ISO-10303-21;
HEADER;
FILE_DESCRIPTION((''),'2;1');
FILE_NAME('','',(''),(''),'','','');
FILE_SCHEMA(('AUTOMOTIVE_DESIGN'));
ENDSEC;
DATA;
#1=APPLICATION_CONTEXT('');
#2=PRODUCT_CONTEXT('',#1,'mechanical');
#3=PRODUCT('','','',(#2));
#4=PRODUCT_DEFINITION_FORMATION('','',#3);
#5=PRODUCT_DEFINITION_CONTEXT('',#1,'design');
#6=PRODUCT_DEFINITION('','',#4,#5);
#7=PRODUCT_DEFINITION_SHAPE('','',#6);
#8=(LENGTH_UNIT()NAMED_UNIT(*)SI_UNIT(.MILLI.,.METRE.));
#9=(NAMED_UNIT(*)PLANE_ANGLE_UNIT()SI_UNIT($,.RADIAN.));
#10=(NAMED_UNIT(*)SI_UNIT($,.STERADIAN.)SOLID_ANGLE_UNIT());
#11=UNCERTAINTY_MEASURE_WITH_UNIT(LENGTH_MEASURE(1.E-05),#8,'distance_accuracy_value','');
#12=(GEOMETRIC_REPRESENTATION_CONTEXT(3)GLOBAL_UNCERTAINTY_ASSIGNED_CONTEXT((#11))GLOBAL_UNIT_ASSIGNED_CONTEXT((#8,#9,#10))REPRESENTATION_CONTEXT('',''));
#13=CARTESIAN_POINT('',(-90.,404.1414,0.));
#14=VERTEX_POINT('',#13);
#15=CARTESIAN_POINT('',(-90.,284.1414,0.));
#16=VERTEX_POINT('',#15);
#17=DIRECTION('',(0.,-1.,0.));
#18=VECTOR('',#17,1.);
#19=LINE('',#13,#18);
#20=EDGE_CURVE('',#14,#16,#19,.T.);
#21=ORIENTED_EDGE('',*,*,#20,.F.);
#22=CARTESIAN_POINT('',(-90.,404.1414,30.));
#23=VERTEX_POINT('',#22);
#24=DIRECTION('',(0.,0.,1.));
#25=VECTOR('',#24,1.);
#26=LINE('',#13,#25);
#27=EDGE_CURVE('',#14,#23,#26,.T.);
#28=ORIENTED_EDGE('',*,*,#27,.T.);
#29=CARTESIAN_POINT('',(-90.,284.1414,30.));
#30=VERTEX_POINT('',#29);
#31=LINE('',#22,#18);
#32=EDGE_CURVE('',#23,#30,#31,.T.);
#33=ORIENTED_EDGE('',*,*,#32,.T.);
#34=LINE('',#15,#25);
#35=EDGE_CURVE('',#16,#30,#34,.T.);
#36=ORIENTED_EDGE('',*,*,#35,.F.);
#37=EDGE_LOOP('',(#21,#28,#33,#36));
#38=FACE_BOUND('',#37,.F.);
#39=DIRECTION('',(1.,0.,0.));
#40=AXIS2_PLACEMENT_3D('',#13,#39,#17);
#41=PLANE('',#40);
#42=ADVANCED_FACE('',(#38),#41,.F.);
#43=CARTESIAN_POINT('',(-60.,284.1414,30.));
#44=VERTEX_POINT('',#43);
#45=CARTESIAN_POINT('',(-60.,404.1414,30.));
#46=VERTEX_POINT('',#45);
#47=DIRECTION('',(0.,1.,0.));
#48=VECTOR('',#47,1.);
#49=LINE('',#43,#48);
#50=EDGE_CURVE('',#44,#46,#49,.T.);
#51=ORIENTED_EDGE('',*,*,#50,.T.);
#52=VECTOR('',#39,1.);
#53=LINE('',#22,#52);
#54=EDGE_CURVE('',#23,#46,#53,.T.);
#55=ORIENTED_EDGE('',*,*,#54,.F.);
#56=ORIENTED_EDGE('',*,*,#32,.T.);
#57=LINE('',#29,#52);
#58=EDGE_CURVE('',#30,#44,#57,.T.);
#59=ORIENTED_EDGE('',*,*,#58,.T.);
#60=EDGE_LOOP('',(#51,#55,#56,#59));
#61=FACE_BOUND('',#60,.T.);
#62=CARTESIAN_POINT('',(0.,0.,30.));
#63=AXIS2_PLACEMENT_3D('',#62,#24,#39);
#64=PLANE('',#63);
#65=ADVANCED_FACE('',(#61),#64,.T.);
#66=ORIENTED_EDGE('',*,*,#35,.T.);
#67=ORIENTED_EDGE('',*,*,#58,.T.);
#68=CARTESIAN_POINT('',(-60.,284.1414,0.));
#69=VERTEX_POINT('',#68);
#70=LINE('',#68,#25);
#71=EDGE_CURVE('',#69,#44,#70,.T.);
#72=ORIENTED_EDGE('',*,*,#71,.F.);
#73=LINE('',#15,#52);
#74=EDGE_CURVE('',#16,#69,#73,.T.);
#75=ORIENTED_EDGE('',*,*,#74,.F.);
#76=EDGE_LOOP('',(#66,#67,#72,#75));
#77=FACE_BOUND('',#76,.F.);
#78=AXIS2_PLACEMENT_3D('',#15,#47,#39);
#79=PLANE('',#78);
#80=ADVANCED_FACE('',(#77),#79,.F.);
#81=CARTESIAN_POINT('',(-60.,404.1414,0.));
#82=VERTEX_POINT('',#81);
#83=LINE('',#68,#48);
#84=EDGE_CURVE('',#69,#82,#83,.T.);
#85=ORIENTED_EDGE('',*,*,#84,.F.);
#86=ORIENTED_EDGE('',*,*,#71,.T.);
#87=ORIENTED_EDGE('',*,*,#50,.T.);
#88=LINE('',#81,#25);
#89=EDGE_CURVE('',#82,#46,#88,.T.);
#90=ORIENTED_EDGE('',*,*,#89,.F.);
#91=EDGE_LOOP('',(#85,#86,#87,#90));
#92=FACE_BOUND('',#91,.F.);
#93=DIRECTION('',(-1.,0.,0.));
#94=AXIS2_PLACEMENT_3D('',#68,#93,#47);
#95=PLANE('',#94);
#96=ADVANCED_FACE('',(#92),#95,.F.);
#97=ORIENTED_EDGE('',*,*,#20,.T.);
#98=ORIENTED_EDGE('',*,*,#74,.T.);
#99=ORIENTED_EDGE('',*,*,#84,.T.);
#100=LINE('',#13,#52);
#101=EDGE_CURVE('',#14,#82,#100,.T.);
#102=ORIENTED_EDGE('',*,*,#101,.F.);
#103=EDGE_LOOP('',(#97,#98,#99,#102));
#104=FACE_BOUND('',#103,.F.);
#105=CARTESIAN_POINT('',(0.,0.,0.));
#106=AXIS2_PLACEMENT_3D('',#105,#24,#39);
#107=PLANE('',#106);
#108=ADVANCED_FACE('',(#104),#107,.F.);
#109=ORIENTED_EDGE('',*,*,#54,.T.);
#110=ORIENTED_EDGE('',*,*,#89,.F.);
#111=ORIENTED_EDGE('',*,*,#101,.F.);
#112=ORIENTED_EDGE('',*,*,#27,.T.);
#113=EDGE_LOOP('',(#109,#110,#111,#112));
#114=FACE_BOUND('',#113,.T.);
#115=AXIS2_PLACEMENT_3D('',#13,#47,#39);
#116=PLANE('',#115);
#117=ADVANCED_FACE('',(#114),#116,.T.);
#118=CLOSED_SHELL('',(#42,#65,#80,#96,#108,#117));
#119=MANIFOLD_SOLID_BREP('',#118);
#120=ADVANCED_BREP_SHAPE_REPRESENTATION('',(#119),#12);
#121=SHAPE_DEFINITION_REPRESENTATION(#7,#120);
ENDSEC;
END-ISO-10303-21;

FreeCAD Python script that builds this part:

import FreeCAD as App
import Part
import Sketcher

V = App.Vector
Q = App.Units.Quantity

doc = App.newDocument("Part")
body = doc.addObject("PartDesign::Body", "Body")

# Sketch on XY plane
sketch1 = body.newObject("Sketcher::SketchObject", "Sketch")
sketch1.AttachmentSupport = (doc.getObject("XY_Plane"), [""])
sketch1.MapMode = "FlatFace"
sketch1.addGeometry([
    Part.LineSegment(V(-60, 404, 0), V(-90, 404, 0)),
    Part.LineSegment(V(-90, 404, 0), V(-90, 284, 0)),
    Part.LineSegment(V(-90, 284, 0), V(-60, 284, 0)),
    Part.LineSegment(V(-60, 284, 0), V(-60, 404, 0)),
], False)
sketch1.addConstraint([
    Sketcher.Constraint("Coincident", 0, 2, 1, 1),
    Sketcher.Constraint("Coincident", 1, 2, 2, 1),
    Sketcher.Constraint("Coincident", 2, 2, 3, 1),
    Sketcher.Constraint("Coincident", 3, 2, 0, 1),
    Sketcher.Constraint("Horizontal", 0),
    Sketcher.Constraint("Vertical", 1),
    Sketcher.Constraint("Horizontal", 2),
    Sketcher.Constraint("Vertical", 3),
    Sketcher.Constraint("DistanceX", 0, 2, 0, 1, Q("30 mm")),
    Sketcher.Constraint("DistanceY", 1, 2, 1, 1, Q("120 mm")),
    Sketcher.Constraint("DistanceX", 0, 2, -1, 1, Q("90 mm")),
    Sketcher.Constraint("DistanceY", -1, 1, 0, 2, Q("404.1414 mm")),
])
pad1 = body.newObject("PartDesign::Pad", "Pad")
pad1.Profile = sketch1
pad1.Length = 30

doc.recompute()
